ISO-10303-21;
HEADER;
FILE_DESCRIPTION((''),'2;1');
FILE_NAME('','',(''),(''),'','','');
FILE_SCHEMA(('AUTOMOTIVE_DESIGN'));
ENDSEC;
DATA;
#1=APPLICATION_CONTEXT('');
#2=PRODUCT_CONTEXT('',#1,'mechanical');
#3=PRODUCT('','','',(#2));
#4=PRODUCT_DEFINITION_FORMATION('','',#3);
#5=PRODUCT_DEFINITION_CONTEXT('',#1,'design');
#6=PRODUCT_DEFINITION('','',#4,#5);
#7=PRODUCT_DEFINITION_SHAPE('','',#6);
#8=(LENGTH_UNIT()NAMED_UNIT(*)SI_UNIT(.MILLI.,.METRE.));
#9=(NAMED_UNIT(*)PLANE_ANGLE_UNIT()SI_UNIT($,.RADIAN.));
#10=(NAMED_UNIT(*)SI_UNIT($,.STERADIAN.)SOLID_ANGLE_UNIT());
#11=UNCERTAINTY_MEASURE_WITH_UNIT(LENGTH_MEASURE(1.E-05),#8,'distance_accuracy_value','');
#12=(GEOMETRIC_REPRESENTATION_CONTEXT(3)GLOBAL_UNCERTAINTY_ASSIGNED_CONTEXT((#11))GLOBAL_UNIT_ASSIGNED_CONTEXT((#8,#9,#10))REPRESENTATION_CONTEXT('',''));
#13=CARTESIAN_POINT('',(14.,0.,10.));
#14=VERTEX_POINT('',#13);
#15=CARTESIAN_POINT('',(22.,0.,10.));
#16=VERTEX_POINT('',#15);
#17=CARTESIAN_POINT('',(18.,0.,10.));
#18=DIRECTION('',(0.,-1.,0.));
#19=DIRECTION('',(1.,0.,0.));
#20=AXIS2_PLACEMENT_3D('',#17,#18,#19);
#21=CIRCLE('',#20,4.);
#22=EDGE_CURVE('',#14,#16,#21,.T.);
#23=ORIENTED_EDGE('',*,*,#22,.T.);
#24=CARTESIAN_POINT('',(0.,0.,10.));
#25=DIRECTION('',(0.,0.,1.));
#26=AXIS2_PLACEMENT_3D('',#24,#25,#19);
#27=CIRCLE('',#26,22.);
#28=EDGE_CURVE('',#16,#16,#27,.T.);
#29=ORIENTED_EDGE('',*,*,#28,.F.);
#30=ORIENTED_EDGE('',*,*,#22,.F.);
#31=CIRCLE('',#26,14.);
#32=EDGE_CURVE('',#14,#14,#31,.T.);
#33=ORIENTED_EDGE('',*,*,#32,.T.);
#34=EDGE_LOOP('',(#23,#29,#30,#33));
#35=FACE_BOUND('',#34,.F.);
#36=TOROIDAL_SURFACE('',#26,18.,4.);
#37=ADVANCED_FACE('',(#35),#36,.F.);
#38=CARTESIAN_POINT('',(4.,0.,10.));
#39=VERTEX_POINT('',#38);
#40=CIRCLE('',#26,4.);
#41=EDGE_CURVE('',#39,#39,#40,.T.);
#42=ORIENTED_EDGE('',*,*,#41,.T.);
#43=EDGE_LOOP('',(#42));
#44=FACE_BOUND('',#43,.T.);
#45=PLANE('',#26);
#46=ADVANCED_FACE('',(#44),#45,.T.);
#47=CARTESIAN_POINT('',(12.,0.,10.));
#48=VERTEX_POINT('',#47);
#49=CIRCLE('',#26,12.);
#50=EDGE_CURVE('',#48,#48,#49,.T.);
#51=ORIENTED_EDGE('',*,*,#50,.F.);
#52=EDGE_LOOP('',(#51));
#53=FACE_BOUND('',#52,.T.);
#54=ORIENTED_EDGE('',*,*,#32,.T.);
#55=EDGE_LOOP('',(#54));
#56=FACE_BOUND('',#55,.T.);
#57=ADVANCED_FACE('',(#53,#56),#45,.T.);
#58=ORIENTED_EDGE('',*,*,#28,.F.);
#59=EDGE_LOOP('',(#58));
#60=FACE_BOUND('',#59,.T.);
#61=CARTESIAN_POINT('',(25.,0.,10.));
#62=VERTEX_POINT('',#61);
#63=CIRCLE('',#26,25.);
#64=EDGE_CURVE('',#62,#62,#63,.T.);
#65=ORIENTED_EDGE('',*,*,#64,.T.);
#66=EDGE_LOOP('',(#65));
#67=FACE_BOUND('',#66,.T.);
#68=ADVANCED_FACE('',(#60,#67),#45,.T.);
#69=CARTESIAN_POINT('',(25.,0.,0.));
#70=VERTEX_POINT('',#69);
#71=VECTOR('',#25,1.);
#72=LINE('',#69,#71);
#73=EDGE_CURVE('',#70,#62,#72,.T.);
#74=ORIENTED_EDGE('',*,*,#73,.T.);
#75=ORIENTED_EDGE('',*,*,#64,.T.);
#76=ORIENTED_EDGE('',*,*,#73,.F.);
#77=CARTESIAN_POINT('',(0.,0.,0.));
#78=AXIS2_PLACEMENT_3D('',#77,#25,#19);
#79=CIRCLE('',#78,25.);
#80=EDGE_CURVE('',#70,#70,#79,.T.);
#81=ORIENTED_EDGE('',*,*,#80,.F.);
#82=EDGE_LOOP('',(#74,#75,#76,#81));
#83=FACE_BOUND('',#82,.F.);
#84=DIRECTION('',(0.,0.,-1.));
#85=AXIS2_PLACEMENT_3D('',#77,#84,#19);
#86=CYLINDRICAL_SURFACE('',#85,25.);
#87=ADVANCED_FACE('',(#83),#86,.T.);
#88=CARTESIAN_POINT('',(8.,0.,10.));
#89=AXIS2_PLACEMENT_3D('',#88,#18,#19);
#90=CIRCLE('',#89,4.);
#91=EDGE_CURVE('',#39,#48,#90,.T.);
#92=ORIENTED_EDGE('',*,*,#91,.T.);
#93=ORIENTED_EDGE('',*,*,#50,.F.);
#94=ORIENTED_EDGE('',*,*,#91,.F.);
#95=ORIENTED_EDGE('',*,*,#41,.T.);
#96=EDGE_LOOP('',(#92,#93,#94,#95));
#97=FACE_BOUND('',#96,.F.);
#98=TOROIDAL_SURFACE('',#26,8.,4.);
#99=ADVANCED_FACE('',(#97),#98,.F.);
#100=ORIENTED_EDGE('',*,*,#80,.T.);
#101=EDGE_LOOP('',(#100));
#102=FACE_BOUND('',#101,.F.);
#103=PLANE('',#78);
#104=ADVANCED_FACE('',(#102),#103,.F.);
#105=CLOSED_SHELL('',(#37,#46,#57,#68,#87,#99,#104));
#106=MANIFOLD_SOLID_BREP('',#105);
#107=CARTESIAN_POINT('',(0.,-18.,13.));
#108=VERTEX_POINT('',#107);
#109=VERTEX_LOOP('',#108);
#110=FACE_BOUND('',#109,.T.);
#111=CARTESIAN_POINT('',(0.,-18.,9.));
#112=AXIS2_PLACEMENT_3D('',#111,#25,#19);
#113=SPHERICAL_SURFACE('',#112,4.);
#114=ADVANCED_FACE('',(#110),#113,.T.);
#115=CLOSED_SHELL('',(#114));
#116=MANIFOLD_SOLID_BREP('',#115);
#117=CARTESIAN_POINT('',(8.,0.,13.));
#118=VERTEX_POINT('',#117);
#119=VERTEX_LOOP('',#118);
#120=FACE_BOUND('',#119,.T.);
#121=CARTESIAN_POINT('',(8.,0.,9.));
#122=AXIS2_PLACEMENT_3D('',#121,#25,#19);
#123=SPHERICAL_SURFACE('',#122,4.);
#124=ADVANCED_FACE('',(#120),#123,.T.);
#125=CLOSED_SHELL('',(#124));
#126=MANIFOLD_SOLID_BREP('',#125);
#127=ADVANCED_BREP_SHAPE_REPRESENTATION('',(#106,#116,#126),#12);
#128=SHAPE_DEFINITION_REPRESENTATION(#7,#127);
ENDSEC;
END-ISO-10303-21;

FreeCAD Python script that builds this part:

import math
import FreeCAD as App
import Part
import Sketcher

V = App.Vector

doc = App.newDocument("Part")
params = doc.addObject("Spreadsheet::Sheet", "Params")
for row, (alias, value) in enumerate([
    ("sketch1_diameter", "8 mm"),
    ("revolution_angle", "360 deg"),
    ("sketch2_diameter", "8 mm"),
    ("revolution2_angle", "360 deg"),
    ("sketch3_diameter", "50 mm"),
    ("pad1_length", "10 mm"),
    ("sketch4_radius", "4 mm"),
    ("revolution3_angle", "360 deg"),
    ("sketch5_radius", "4 mm"),
    ("revolution4_angle", "360 deg"),
], start=1):
    params.set(f"A{row}", alias)
    params.set(f"B{row}", "=" + value)
    params.setAlias(f"B{row}", alias)

body = doc.addObject("PartDesign::Body", "Body")

sketch1 = body.newObject("Sketcher::SketchObject", "Sketch")
sketch1.AttachmentSupport = (doc.getObject("XZ_Plane"), [""])
sketch1.MapMode = "FlatFace"
sketch1.addGeometry(Part.Circle(V(18, 10, 0), V(0, 0, 1), 4), False)
sketch1.addConstraint([
    Sketcher.Constraint("Diameter", 0, 8.0),
    Sketcher.Constraint("DistanceX", -1, 1, 0, 3, 18.0),
    Sketcher.Constraint("DistanceY", -1, 1, 0, 3, 10.0),
])
sketch1.setExpression("Constraints[0]", "Params.sketch1_diameter")
revolution = body.newObject("PartDesign::Revolution", "Revolution")
revolution.Profile = sketch1
revolution.ReferenceAxis = (sketch1, ["V_Axis"])
revolution.setExpression("Angle", "Params.revolution_angle")
body2 = doc.addObject("PartDesign::Body", "Body001")

sketch2 = body2.newObject("Sketcher::SketchObject", "Sketch001")
sketch2.AttachmentSupport = (doc.getObject("XZ_Plane001"), [""])
sketch2.MapMode = "FlatFace"
sketch2.addGeometry(Part.Circle(V(8, 10, 0), V(0, 0, 1), 4), False)
sketch2.addConstraint([
    Sketcher.Constraint("Diameter", 0, 8.0),
    Sketcher.Constraint("DistanceX", -1, 1, 0, 3, 8.0),
    Sketcher.Constraint("DistanceY", -1, 1, 0, 3, 10.0),
])
sketch2.setExpression("Constraints[0]", "Params.sketch2_diameter")
revolution2 = body2.newObject("PartDesign::Revolution", "Revolution001")
revolution2.Profile = sketch2
revolution2.ReferenceAxis = (sketch2, ["V_Axis"])
revolution2.setExpression("Angle", "Params.revolution2_angle")
body3 = doc.addObject("PartDesign::Body", "Body002")

sketch3 = body3.newObject("Sketcher::SketchObject", "Sketch002")
sketch3.AttachmentSupport = (doc.getObject("XY_Plane002"), [""])
sketch3.MapMode = "FlatFace"
sketch3.addGeometry(Part.Circle(V(0, 0, 0), V(0, 0, 1), 25), False)
sketch3.addConstraint([
    Sketcher.Constraint("Coincident", 0, 3, -1, 1),
    Sketcher.Constraint("Diameter", 0, 50.0),
])
sketch3.setExpression("Constraints[1]", "Params.sketch3_diameter")
pad1 = body3.newObject("PartDesign::Pad", "Pad")
pad1.Profile = sketch3
pad1.setExpression("Length", "Params.pad1_length")
doc.recompute()

boolean = body3.newObject("PartDesign::Boolean", "Boolean")
boolean.Type = "Cut"
boolean.addObjects([body2])
doc.recompute()

boolean2 = body3.newObject("PartDesign::Boolean", "Boolean001")
boolean2.Type = "Cut"
boolean2.addObjects([body])
body4 = doc.addObject("PartDesign::Body", "Body003")

sketch4 = body4.newObject("Sketcher::SketchObject", "Sketch003")
sketch4.AttachmentSupport = (doc.getObject("XZ_Plane003"), [""])
sketch4.MapMode = "FlatFace"
sketch4.addGeometry([
    Part.ArcOfCircle(Part.Circle(V(8, 9, 0), V(0, 0, 1), 4), math.radians(-90), math.radians(90)),
    Part.LineSegment(V(8, 13, 0), V(8, 5, 0)),
], False)
sketch4.addGeometry(Part.LineSegment(V(8, 5, 0), V(8, 13, 0)), True)
sketch4.addConstraint([
    Sketcher.Constraint("Coincident", 0, 1, 1, 2),
    Sketcher.Constraint("Coincident", 1, 1, 0, 2),
    Sketcher.Constraint("Vertical", 1),
    Sketcher.Constraint("Vertical", 2),
    Sketcher.Constraint("Coincident", 2, 1, 0, 1),
    Sketcher.Constraint("Equal", 1, 2),
    Sketcher.Constraint("Radius", 0, 4.0),
    Sketcher.Constraint("DistanceX", -1, 1, 0, 3, 8.0),
    Sketcher.Constraint("DistanceY", -1, 1, 0, 3, 9.0),
    Sketcher.Constraint("DistanceX", -1, 1, 0, 1, 8.0),
])
sketch4.setExpression("Constraints[6]", "Params.sketch4_radius")
revolution3 = body4.newObject("PartDesign::Revolution", "Revolution002")
revolution3.Profile = sketch4
revolution3.ReferenceAxis = (sketch4, ["Axis0"])
revolution3.setExpression("Angle", "Params.revolution3_angle")
body5 = doc.addObject("PartDesign::Body", "Body004")

sketch5 = body5.newObject("Sketcher::SketchObject", "Sketch004")
sketch5.AttachmentSupport = (doc.getObject("XZ_Plane004"), [""])
sketch5.MapMode = "FlatFace"
sketch5.AttachmentOffset = App.Placement(V(0, 0, 18), App.Rotation())
sketch5.addGeometry([
    Part.ArcOfCircle(Part.Circle(V(0, 9, 0), V(0, 0, 1), 4), math.radians(-90), math.radians(90)),
    Part.LineSegment(V(0, 13, 0), V(0, 5, 0)),
], False)
sketch5.addConstraint([
    Sketcher.Constraint("Coincident", 0, 1, 1, 2),
    Sketcher.Constraint("Coincident", 1, 1, 0, 2),
    Sketcher.Constraint("Vertical", 1),
    Sketcher.Constraint("PointOnObject", 0, 3, -2),
    Sketcher.Constraint("PointOnObject", 0, 1, -2),
    Sketcher.Constraint("Radius", 0, 4.0),
    Sketcher.Constraint("DistanceY", -1, 1, 0, 3, 9.0),
])
sketch5.setExpression("Constraints[5]", "Params.sketch5_radius")
revolution4 = body5.newObject("PartDesign::Revolution", "Revolution003")
revolution4.Profile = sketch5
revolution4.ReferenceAxis = (sketch5, ["V_Axis"])
revolution4.setExpression("Angle", "Params.revolution4_angle")

doc.recompute()
